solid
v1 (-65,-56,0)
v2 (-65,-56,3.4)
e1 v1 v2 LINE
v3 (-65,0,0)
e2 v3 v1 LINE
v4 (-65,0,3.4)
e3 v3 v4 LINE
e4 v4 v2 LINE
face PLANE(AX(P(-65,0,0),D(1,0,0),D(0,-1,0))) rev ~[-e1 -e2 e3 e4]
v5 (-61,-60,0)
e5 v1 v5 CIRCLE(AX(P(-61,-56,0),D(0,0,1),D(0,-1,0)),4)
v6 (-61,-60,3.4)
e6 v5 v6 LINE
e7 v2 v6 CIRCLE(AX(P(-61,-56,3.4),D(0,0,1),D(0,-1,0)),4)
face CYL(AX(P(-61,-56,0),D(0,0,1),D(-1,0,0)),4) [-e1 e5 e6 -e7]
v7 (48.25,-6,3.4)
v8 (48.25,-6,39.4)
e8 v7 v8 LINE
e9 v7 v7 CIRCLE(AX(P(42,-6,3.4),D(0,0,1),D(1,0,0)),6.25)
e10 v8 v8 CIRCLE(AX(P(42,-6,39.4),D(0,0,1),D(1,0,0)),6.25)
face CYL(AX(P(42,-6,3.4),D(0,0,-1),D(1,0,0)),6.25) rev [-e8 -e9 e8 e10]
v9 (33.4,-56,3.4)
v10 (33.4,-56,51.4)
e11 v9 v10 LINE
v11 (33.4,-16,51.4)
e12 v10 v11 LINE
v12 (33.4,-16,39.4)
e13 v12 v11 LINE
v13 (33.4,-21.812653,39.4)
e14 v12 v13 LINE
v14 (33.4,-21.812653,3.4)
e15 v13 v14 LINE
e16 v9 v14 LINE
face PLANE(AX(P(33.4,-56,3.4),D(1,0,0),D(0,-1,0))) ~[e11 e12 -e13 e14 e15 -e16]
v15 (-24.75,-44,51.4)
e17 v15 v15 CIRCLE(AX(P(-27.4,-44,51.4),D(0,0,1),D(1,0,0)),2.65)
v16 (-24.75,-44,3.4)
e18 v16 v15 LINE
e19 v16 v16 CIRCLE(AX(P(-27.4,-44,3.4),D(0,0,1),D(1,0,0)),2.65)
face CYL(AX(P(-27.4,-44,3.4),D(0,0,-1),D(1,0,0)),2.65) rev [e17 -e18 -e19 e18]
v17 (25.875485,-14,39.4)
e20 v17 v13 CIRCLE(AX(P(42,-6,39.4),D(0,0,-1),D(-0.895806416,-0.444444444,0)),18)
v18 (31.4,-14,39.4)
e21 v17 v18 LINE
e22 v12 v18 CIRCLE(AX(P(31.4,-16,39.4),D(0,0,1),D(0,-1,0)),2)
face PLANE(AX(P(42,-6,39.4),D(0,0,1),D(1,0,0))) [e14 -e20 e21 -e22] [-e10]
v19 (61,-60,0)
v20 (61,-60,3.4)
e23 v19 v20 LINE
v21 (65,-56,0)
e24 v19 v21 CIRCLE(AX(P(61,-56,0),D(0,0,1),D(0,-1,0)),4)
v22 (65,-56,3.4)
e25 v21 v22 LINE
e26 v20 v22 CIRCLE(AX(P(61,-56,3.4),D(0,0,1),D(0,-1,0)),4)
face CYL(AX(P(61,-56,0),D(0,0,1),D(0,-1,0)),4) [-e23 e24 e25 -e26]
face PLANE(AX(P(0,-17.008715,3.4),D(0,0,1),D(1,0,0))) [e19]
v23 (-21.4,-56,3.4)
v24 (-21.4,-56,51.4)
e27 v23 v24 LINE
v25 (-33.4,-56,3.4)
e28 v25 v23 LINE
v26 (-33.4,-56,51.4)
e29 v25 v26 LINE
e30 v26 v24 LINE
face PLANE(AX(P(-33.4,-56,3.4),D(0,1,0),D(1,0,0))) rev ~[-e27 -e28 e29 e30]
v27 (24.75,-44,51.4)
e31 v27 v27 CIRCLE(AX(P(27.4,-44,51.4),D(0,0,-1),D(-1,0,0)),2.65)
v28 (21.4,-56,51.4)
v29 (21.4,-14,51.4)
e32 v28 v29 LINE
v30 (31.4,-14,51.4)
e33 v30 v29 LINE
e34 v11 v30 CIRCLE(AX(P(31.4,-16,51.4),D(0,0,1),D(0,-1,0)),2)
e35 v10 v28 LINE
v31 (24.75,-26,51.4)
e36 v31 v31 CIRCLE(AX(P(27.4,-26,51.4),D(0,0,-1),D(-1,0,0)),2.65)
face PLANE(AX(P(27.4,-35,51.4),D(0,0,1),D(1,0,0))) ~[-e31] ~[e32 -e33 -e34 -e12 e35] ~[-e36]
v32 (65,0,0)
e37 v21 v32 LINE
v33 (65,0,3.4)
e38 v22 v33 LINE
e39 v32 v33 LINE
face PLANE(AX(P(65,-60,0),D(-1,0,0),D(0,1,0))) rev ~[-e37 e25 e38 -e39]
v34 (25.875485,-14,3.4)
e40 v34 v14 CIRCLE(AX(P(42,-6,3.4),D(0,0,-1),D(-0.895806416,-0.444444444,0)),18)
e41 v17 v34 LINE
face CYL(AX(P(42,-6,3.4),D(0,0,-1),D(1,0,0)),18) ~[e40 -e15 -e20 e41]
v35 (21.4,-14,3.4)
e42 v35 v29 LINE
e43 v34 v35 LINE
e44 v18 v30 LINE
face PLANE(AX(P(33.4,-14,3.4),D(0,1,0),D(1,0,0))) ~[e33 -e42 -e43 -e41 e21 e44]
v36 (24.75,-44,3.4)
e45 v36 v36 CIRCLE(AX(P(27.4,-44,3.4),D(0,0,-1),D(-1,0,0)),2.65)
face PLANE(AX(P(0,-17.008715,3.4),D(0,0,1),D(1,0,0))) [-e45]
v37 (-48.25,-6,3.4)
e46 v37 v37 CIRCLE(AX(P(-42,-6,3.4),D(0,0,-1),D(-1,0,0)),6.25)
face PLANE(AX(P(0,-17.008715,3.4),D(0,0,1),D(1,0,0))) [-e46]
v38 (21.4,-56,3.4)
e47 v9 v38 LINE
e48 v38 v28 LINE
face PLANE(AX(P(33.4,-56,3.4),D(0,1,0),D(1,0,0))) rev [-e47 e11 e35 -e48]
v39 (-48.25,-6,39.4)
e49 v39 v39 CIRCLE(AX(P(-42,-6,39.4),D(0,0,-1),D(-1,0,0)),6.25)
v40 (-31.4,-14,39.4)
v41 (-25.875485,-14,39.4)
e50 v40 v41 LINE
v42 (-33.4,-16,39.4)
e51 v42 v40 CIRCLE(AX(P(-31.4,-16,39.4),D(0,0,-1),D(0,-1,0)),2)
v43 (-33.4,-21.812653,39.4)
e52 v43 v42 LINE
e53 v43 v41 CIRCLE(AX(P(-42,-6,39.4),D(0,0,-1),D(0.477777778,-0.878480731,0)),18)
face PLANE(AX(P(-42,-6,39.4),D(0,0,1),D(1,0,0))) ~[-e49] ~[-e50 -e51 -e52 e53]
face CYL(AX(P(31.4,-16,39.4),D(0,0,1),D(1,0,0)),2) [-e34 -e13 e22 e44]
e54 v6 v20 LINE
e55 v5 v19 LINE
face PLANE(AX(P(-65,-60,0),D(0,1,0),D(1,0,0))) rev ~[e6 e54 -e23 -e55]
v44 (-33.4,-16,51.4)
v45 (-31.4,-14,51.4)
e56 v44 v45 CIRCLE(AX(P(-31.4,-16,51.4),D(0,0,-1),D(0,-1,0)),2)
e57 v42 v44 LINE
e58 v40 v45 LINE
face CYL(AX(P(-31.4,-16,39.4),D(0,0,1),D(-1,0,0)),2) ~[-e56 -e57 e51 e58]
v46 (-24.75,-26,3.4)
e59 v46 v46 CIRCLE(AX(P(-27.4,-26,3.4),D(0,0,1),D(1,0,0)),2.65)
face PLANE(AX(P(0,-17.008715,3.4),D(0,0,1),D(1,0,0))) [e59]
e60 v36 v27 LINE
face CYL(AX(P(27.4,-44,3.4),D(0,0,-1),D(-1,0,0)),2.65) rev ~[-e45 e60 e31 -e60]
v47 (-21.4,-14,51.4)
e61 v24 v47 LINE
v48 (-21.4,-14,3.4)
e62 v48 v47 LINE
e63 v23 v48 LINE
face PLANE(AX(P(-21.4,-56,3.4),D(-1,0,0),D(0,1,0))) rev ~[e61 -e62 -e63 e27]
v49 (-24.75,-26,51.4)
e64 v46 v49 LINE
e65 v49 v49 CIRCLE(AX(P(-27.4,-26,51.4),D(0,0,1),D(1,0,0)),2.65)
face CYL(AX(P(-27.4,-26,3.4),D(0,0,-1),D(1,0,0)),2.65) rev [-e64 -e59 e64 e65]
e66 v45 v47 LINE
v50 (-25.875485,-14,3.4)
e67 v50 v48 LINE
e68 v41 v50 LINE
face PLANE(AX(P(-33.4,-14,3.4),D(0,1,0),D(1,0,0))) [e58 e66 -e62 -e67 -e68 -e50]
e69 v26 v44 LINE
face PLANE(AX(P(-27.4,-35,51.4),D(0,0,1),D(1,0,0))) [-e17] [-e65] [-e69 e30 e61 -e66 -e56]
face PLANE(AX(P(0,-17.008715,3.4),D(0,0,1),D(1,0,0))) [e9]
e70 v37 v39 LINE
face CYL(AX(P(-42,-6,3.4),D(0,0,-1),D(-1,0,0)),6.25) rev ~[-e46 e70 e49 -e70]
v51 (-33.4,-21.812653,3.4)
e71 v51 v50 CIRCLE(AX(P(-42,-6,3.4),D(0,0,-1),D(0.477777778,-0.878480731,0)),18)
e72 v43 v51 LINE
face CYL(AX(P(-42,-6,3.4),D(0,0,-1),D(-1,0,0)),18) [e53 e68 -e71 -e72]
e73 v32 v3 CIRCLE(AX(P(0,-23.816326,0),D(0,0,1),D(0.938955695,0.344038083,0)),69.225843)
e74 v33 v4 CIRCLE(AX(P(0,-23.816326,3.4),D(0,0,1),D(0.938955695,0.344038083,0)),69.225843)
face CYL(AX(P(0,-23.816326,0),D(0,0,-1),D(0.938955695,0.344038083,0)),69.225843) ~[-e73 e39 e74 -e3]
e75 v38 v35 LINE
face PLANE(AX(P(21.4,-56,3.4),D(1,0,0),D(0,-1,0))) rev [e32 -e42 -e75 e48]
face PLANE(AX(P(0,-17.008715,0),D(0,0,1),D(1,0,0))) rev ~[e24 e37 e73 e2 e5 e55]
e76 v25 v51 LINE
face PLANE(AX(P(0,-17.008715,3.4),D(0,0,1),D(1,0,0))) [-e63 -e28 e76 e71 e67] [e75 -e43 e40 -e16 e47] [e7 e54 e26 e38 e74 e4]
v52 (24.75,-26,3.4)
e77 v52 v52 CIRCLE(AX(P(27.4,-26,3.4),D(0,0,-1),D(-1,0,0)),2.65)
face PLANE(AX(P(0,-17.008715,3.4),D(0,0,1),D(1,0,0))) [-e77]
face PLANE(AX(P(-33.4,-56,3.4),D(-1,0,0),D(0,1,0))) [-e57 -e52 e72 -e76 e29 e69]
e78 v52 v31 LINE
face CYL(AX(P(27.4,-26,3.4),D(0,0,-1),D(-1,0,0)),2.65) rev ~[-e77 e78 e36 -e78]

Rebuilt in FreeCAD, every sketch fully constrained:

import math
import FreeCAD as App
import Part
import Sketcher
from FreeCAD import Vector
Q = App.Units.Quantity


def edges_at(feature, points):
    """Names of the edges that pass closest to the given points."""
    edges = feature.Shape.Edges
    near = lambda p: min(range(len(edges)), key=lambda i: edges[i].distToShape(Part.Vertex(*p))[0])
    return sorted({f"Edge{near(p) + 1}" for p in points})

doc = App.newDocument("Part")
params = doc.addObject("Spreadsheet::Sheet", "Params")
for row, (alias, value) in enumerate([
    ("sketch1_width", "130 mm"),
    ("sketch1_height", "60 mm"),
    ("pad1_length", "3.4 mm"),
    ("fillet_radius", "4 mm"),
    ("sketch2_diameter", "36 mm"),
    ("sketch2_diameter2", "12.5 mm"),
    ("pad2_length", "36 mm"),
    ("sketch3_diameter", "5.3 mm"),
    ("sketch3_width", "12 mm"),
    ("sketch3_height", "42 mm"),
    ("pad3_length", "48 mm"),
    ("fillet2_radius", "2 mm"),
], start=1):
    params.set(f"A{row}", alias)
    params.set(f"B{row}", "=" + value)
    params.setAlias(f"B{row}", alias)

body = doc.addObject("PartDesign::Body", "Body")

sketch1 = body.newObject("Sketcher::SketchObject", "Sketch")
sketch1.AttachmentSupport = (doc.getObject("XY_Plane"), [""])
sketch1.MapMode = "FlatFace"
sketch1.addGeometry(Part.LineSegment(Vector(-65, 0, 0), Vector(-65, -60, 0)), False)
sketch1.addGeometry(Part.LineSegment(Vector(-65, -60, 0), Vector(65, -60, 0)), False)
sketch1.addGeometry(Part.LineSegment(Vector(65, -60, 0), Vector(65, 0, 0)), False)
sketch1.addGeometry(Part.ArcOfCircle(Part.Circle(Vector(0, -24, 0), Vector(0, 0, 1), 69), math.radians(20), math.radians(160)), False)
sketch1.addConstraint(Sketcher.Constraint("Coincident", 0, 2, 1, 1))
sketch1.addConstraint(Sketcher.Constraint("Coincident", 1, 2, 2, 1))
sketch1.addConstraint(Sketcher.Constraint("Coincident", 2, 2, 3, 1))
sketch1.addConstraint(Sketcher.Constraint("Coincident", 3, 2, 0, 1))
sketch1.addConstraint(Sketcher.Constraint("Vertical", 0))
sketch1.addConstraint(Sketcher.Constraint("Horizontal", 1))
sketch1.addConstraint(Sketcher.Constraint("Vertical", 2))
sketch1.addConstraint(Sketcher.Constraint("Symmetric", 2, 2, 3, 2, -1, 1))
sketch1.addConstraint(Sketcher.Constraint("PointOnObject", 3, 3, -2))
sketch1.addConstraint(Sketcher.Constraint("DistanceX", 1, 1, 1, 2, Q("130 mm")))
sketch1.addConstraint(Sketcher.Constraint("DistanceY", 0, 2, 0, 1, Q("60 mm")))
sketch1.addConstraint(Sketcher.Constraint("Radius", 3, Q("69.225843 mm")))
sketch1.setExpression("Constraints[9]", "Params.sketch1_width")
sketch1.setExpression("Constraints[10]", "Params.sketch1_height")
pad1 = body.newObject("PartDesign::Pad", "Pad")
pad1.Profile = sketch1
pad1.setExpression("Length", "Params.pad1_length")
doc.recompute()

fillet = body.newObject("PartDesign::Fillet", "Fillet")
fillet.Base = (pad1, edges_at(pad1, [(65, -60, 1.7), (-65, -60, 1.7)]))
fillet.setExpression("Radius", "Params.fillet_radius")

sketch2 = body.newObject("Sketcher::SketchObject", "Sketch001")
sketch2.AttachmentSupport = (doc.getObject("XY_Plane"), [""])
sketch2.MapMode = "FlatFace"
sketch2.AttachmentOffset = App.Placement(Vector(0, 0, 3.4), App.Rotation())
sketch2.addGeometry(Part.Circle(Vector(42, -6, 0), Vector(0, 0, 1), 18), False)
sketch2.addGeometry(Part.Circle(Vector(42, -6, 0), Vector(0, 0, 1), 6), False)
sketch2.addConstraint(Sketcher.Constraint("Coincident", 1, 3, 0, 3))
sketch2.addConstraint(Sketcher.Constraint("Diameter", 0, Q("36 mm")))
sketch2.addConstraint(Sketcher.Constraint("Diameter", 1, Q("12.5 mm")))
sketch2.addConstraint(Sketcher.Constraint("DistanceX", -1, 1, 0, 3, Q("42 mm")))
sketch2.addConstraint(Sketcher.Constraint("DistanceY", 0, 3, -1, 1, Q("6 mm")))
sketch2.setExpression("Constraints[1]", "Params.sketch2_diameter")
sketch2.setExpression("Constraints[2]", "Params.sketch2_diameter2")
pad2 = body.newObject("PartDesign::Pad", "Pad001")
pad2.Profile = sketch2
pad2.setExpression("Length", "Params.pad2_length")
doc.recompute()

mirrored = body.newObject("PartDesign::Mirrored", "Mirrored")
mirrored.Originals = [pad2]
mirrored.MirrorPlane = (doc.getObject("YZ_Plane"), [""])
body.Tip = mirrored

sketch3 = body.newObject("Sketcher::SketchObject", "Sketch002")
sketch3.AttachmentSupport = (doc.getObject("XY_Plane"), [""])
sketch3.MapMode = "FlatFace"
sketch3.AttachmentOffset = App.Placement(Vector(0, 0, 3.4), App.Rotation())
sketch3.addGeometry(Part.LineSegment(Vector(-33.4, -14, 0), Vector(-33.4, -56, 0)), False)
sketch3.addGeometry(Part.LineSegment(Vector(-33.4, -56, 0), Vector(-21.4, -56, 0)), False)
sketch3.addGeometry(Part.LineSegment(Vector(-21.4, -56, 0), Vector(-21.4, -14, 0)), False)
sketch3.addGeometry(Part.LineSegment(Vector(-21.4, -14, 0), Vector(-33.4, -14, 0)), False)
sketch3.addGeometry(Part.Circle(Vector(-27.4, -44, 0), Vector(0, 0, 1), 2.6), False)
sketch3.addGeometry(Part.Circle(Vector(-27.4, -26, 0), Vector(0, 0, 1), 2.6), False)
sketch3.addConstraint(Sketcher.Constraint("Coincident", 0, 2, 1, 1))
sketch3.addConstraint(Sketcher.Constraint("Coincident", 1, 2, 2, 1))
sketch3.addConstraint(Sketcher.Constraint("Coincident", 2, 2, 3, 1))
sketch3.addConstraint(Sketcher.Constraint("Coincident", 3, 2, 0, 1))
sketch3.addConstraint(Sketcher.Constraint("Vertical", 0))
sketch3.addConstraint(Sketcher.Constraint("Horizontal", 1))
sketch3.addConstraint(Sketcher.Constraint("Vertical", 2))
sketch3.addConstraint(Sketcher.Constraint("Horizontal", 3))
sketch3.addConstraint(Sketcher.Constraint("Equal", 4, 5))
sketch3.addConstraint(Sketcher.Constraint("Vertical", 4, 3, 5, 3))
sketch3.addConstraint(Sketcher.Constraint("Diameter", 4, Q("5.3 mm")))
sketch3.addConstraint(Sketcher.Constraint("DistanceX", 1, 1, 1, 2, Q("12 mm")))
sketch3.addConstraint(Sketcher.Constraint("DistanceY", 0, 2, 0, 1, Q("42 mm")))
sketch3.addConstraint(Sketcher.Constraint("DistanceY", 4, 3, -1, 1, Q("44 mm")))
sketch3.addConstraint(Sketcher.Constraint("DistanceY", 5, 3, -1, 1, Q("26 mm")))
sketch3.addConstraint(Sketcher.Constraint("DistanceY", 0, 2, -1, 1, Q("56 mm")))
sketch3.addConstraint(Sketcher.Constraint("DistanceX", 0, 2, 4, 3, Q("6 mm")))
sketch3.addConstraint(Sketcher.Constraint("DistanceX", 4, 3, -1, 1, Q("27.4 mm")))
sketch3.setExpression("Constraints[10]", "Params.sketch3_diameter")
sketch3.setExpression("Constraints[11]", "Params.sketch3_width")
sketch3.setExpression("Constraints[12]", "Params.sketch3_height")
pad3 = body.newObject("PartDesign::Pad", "Pad002")
pad3.Profile = sketch3
pad3.setExpression("Length", "Params.pad3_length")
doc.recompute()

mirrored2 = body.newObject("PartDesign::Mirrored", "Mirrored001")
mirrored2.Originals = [pad3]
mirrored2.MirrorPlane = (doc.getObject("YZ_Plane"), [""])
body.Tip = mirrored2
doc.recompute()

fillet2 = body.newObject("PartDesign::Fillet", "Fillet001")
fillet2.Base = (mirrored2, edges_at(mirrored2, [(33.4, -14, 45.4), (-33.4, -14, 45.4)]))
fillet2.setExpression("Radius", "Params.fillet2_radius")

doc.recompute()
